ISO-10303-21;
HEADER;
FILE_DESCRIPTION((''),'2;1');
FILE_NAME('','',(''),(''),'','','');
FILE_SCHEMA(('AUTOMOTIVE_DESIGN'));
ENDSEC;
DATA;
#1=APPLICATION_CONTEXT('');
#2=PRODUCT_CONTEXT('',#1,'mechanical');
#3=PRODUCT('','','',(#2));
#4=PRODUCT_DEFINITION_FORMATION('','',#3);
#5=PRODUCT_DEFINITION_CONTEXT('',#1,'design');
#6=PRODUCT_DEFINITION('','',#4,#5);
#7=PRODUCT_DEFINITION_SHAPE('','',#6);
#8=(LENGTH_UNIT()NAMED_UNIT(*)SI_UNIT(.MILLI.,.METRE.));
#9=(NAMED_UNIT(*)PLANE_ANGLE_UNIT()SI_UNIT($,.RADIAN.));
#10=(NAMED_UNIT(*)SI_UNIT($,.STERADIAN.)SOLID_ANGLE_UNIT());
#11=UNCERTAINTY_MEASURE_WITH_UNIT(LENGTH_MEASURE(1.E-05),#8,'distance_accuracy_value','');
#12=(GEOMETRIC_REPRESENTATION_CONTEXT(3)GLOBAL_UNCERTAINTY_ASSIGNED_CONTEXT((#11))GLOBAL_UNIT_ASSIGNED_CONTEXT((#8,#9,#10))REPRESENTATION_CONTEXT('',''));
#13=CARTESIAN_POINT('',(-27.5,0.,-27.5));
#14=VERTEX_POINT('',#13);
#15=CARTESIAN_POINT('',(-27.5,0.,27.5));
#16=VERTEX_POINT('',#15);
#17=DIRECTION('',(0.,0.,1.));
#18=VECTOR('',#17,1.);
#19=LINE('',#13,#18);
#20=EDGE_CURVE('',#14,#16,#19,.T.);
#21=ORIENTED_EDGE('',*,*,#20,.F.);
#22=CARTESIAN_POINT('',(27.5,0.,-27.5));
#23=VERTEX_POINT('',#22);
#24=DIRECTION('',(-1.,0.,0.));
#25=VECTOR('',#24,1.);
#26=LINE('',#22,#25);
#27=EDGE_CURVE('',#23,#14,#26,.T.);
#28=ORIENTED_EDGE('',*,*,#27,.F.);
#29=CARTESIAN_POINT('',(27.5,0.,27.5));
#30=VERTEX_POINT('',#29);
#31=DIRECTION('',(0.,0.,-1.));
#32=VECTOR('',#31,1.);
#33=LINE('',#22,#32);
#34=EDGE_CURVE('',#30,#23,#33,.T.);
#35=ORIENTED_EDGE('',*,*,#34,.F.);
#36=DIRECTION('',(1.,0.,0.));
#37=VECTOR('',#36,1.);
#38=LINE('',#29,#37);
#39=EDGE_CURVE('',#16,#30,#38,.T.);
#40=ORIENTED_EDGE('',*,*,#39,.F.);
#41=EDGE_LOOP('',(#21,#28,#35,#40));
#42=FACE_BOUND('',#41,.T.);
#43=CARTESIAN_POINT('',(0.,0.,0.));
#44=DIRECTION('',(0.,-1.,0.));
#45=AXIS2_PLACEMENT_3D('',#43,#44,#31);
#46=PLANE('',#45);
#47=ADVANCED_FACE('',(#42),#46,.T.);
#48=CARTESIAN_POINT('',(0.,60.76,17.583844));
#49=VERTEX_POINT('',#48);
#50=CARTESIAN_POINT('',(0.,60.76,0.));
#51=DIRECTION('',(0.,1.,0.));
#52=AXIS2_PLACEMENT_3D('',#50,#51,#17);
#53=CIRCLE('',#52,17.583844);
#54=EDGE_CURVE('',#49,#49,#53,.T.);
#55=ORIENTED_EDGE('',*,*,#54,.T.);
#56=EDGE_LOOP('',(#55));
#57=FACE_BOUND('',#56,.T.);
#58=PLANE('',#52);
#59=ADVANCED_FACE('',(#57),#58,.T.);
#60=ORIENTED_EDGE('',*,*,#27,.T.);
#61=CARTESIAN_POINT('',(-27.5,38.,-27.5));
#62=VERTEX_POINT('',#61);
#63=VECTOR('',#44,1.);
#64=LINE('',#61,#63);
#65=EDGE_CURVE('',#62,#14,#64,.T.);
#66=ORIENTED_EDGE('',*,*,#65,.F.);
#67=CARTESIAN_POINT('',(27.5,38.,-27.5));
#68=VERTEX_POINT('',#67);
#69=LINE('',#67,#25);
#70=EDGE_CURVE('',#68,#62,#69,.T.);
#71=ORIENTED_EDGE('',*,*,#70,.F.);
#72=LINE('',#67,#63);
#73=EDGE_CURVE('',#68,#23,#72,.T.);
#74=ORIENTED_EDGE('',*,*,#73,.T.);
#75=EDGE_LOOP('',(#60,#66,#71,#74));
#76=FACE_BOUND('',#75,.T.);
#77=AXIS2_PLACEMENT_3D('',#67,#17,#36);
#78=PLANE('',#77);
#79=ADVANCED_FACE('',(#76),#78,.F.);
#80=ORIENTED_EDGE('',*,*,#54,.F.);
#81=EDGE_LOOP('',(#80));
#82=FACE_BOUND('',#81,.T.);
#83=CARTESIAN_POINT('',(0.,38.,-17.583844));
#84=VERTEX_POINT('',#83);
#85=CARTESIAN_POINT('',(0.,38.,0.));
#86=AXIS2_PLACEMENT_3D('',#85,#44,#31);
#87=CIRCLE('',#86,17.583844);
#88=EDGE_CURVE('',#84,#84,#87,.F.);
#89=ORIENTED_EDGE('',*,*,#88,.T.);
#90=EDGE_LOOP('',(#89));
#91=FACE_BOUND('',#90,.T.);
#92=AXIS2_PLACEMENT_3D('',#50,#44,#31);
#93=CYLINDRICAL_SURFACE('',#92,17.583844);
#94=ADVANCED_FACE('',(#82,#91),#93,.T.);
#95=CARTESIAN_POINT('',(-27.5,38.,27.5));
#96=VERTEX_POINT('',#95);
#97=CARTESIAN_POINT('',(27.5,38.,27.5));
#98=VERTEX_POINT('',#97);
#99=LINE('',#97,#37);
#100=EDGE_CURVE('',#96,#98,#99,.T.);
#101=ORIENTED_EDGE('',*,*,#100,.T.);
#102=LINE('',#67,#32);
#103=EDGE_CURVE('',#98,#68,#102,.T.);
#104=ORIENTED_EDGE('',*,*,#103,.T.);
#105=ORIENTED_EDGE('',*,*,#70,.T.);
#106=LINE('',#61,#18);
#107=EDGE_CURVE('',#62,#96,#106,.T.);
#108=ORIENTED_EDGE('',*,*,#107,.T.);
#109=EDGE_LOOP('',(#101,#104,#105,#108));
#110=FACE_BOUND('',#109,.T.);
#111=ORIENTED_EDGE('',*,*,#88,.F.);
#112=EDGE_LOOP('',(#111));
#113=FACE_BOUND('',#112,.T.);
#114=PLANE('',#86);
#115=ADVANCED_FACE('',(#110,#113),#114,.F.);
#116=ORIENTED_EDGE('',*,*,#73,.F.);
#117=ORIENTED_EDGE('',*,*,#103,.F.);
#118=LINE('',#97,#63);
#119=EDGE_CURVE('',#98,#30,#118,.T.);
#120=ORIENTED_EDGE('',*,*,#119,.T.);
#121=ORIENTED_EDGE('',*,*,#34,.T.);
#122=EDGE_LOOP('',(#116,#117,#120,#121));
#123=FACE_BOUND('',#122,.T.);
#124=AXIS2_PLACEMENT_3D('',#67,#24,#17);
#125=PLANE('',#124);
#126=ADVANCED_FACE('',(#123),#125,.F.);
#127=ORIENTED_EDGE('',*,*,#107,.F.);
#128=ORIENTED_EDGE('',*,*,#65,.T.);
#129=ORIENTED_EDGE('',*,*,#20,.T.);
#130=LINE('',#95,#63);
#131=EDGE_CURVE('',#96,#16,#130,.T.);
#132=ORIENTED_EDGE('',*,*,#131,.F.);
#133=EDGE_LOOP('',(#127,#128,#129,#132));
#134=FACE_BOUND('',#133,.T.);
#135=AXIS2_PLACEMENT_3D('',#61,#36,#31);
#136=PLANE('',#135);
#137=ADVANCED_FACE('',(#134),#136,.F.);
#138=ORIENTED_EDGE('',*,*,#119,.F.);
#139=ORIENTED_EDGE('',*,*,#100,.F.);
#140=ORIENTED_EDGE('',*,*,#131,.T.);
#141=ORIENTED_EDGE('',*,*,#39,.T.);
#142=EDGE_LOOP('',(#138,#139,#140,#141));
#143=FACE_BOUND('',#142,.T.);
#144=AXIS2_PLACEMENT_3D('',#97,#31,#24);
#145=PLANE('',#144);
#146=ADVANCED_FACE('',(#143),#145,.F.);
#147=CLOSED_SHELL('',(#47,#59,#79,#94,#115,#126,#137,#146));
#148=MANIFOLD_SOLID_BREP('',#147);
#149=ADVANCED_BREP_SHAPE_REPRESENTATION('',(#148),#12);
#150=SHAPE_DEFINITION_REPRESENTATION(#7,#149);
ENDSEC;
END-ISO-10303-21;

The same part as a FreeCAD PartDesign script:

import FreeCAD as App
import Part
import Sketcher
Q = App.Units.Quantity


def add_polygon(sketch, points):
    """Adds a closed chain of lines whose ends are joined by coincident constraints."""
    first, n = sketch.GeometryCount, len(points)
    for a, b in zip(points, points[1:] + points[:1]):
        sketch.addGeometry(Part.LineSegment(App.Vector(*a, 0), App.Vector(*b, 0)), False)
    for i in range(n):
        sketch.addConstraint(Sketcher.Constraint("Coincident", first + i, 2, first + (i + 1) % n, 1))

doc = App.newDocument("Part")
params = doc.addObject("Spreadsheet::Sheet", "Params")
for row, (alias, value) in enumerate([
    ("sketch1_width", "55 mm"),
    ("pad1_length", "38 mm"),
    ("pad2_length", "22.76 mm"),
], start=1):
    params.set(f"A{row}", alias)
    params.set(f"B{row}", "=" + value)
    params.setAlias(f"B{row}", alias)

body = doc.addObject("PartDesign::Body", "Body")

# Sketch on XZ plane
sketch1 = body.newObject("Sketcher::SketchObject", "Sketch")
sketch1.AttachmentSupport = (doc.getObject("XZ_Plane"), [""])
sketch1.MapMode = "FlatFace"
add_polygon(sketch1, [(-27.5, -27.5), (-27.5, 27.5), (27.5, 27.5), (27.5, -27.5)])  # lines 0-3
sketch1.addConstraint([
    Sketcher.Constraint("Vertical", 0),
    Sketcher.Constraint("Horizontal", 1),
    Sketcher.Constraint("Vertical", 2),
    Sketcher.Constraint("Horizontal", 3),
    Sketcher.Constraint("Symmetric", 0, 2, 2, 2, -1, 1),
    Sketcher.Constraint("Equal", 3, 0),
    Sketcher.Constraint("DistanceX", 1, 1, 1, 2, Q("55 mm")),
])
sketch1.setExpression("Constraints[10]", "Params.sketch1_width")
pad1 = body.newObject("PartDesign::Pad", "Pad")
pad1.Profile = sketch1
pad1.setExpression("Length", "Params.pad1_length")
pad1.Reversed = True

# Sketch on XZ plane
sketch2 = body.newObject("Sketcher::SketchObject", "Sketch001")
sketch2.AttachmentSupport = (doc.getObject("XZ_Plane"), [""])
sketch2.MapMode = "FlatFace"
sketch2.AttachmentOffset = App.Placement(App.Vector(0, 0, -38), App.Rotation())
sketch2.addGeometry(Part.Circle(App.Vector(0, 0, 0), App.Vector(0, 0, 1), 17.583844), False)
sketch2.addConstraint([
    Sketcher.Constraint("Coincident", 0, 3, -1, 1),
    Sketcher.Constraint("Diameter", 0, Q("35.167688 mm")),
])
pad2 = body.newObject("PartDesign::Pad", "Pad001")
pad2.Profile = sketch2
pad2.setExpression("Length", "Params.pad2_length")
pad2.Reversed = True

doc.recompute()
